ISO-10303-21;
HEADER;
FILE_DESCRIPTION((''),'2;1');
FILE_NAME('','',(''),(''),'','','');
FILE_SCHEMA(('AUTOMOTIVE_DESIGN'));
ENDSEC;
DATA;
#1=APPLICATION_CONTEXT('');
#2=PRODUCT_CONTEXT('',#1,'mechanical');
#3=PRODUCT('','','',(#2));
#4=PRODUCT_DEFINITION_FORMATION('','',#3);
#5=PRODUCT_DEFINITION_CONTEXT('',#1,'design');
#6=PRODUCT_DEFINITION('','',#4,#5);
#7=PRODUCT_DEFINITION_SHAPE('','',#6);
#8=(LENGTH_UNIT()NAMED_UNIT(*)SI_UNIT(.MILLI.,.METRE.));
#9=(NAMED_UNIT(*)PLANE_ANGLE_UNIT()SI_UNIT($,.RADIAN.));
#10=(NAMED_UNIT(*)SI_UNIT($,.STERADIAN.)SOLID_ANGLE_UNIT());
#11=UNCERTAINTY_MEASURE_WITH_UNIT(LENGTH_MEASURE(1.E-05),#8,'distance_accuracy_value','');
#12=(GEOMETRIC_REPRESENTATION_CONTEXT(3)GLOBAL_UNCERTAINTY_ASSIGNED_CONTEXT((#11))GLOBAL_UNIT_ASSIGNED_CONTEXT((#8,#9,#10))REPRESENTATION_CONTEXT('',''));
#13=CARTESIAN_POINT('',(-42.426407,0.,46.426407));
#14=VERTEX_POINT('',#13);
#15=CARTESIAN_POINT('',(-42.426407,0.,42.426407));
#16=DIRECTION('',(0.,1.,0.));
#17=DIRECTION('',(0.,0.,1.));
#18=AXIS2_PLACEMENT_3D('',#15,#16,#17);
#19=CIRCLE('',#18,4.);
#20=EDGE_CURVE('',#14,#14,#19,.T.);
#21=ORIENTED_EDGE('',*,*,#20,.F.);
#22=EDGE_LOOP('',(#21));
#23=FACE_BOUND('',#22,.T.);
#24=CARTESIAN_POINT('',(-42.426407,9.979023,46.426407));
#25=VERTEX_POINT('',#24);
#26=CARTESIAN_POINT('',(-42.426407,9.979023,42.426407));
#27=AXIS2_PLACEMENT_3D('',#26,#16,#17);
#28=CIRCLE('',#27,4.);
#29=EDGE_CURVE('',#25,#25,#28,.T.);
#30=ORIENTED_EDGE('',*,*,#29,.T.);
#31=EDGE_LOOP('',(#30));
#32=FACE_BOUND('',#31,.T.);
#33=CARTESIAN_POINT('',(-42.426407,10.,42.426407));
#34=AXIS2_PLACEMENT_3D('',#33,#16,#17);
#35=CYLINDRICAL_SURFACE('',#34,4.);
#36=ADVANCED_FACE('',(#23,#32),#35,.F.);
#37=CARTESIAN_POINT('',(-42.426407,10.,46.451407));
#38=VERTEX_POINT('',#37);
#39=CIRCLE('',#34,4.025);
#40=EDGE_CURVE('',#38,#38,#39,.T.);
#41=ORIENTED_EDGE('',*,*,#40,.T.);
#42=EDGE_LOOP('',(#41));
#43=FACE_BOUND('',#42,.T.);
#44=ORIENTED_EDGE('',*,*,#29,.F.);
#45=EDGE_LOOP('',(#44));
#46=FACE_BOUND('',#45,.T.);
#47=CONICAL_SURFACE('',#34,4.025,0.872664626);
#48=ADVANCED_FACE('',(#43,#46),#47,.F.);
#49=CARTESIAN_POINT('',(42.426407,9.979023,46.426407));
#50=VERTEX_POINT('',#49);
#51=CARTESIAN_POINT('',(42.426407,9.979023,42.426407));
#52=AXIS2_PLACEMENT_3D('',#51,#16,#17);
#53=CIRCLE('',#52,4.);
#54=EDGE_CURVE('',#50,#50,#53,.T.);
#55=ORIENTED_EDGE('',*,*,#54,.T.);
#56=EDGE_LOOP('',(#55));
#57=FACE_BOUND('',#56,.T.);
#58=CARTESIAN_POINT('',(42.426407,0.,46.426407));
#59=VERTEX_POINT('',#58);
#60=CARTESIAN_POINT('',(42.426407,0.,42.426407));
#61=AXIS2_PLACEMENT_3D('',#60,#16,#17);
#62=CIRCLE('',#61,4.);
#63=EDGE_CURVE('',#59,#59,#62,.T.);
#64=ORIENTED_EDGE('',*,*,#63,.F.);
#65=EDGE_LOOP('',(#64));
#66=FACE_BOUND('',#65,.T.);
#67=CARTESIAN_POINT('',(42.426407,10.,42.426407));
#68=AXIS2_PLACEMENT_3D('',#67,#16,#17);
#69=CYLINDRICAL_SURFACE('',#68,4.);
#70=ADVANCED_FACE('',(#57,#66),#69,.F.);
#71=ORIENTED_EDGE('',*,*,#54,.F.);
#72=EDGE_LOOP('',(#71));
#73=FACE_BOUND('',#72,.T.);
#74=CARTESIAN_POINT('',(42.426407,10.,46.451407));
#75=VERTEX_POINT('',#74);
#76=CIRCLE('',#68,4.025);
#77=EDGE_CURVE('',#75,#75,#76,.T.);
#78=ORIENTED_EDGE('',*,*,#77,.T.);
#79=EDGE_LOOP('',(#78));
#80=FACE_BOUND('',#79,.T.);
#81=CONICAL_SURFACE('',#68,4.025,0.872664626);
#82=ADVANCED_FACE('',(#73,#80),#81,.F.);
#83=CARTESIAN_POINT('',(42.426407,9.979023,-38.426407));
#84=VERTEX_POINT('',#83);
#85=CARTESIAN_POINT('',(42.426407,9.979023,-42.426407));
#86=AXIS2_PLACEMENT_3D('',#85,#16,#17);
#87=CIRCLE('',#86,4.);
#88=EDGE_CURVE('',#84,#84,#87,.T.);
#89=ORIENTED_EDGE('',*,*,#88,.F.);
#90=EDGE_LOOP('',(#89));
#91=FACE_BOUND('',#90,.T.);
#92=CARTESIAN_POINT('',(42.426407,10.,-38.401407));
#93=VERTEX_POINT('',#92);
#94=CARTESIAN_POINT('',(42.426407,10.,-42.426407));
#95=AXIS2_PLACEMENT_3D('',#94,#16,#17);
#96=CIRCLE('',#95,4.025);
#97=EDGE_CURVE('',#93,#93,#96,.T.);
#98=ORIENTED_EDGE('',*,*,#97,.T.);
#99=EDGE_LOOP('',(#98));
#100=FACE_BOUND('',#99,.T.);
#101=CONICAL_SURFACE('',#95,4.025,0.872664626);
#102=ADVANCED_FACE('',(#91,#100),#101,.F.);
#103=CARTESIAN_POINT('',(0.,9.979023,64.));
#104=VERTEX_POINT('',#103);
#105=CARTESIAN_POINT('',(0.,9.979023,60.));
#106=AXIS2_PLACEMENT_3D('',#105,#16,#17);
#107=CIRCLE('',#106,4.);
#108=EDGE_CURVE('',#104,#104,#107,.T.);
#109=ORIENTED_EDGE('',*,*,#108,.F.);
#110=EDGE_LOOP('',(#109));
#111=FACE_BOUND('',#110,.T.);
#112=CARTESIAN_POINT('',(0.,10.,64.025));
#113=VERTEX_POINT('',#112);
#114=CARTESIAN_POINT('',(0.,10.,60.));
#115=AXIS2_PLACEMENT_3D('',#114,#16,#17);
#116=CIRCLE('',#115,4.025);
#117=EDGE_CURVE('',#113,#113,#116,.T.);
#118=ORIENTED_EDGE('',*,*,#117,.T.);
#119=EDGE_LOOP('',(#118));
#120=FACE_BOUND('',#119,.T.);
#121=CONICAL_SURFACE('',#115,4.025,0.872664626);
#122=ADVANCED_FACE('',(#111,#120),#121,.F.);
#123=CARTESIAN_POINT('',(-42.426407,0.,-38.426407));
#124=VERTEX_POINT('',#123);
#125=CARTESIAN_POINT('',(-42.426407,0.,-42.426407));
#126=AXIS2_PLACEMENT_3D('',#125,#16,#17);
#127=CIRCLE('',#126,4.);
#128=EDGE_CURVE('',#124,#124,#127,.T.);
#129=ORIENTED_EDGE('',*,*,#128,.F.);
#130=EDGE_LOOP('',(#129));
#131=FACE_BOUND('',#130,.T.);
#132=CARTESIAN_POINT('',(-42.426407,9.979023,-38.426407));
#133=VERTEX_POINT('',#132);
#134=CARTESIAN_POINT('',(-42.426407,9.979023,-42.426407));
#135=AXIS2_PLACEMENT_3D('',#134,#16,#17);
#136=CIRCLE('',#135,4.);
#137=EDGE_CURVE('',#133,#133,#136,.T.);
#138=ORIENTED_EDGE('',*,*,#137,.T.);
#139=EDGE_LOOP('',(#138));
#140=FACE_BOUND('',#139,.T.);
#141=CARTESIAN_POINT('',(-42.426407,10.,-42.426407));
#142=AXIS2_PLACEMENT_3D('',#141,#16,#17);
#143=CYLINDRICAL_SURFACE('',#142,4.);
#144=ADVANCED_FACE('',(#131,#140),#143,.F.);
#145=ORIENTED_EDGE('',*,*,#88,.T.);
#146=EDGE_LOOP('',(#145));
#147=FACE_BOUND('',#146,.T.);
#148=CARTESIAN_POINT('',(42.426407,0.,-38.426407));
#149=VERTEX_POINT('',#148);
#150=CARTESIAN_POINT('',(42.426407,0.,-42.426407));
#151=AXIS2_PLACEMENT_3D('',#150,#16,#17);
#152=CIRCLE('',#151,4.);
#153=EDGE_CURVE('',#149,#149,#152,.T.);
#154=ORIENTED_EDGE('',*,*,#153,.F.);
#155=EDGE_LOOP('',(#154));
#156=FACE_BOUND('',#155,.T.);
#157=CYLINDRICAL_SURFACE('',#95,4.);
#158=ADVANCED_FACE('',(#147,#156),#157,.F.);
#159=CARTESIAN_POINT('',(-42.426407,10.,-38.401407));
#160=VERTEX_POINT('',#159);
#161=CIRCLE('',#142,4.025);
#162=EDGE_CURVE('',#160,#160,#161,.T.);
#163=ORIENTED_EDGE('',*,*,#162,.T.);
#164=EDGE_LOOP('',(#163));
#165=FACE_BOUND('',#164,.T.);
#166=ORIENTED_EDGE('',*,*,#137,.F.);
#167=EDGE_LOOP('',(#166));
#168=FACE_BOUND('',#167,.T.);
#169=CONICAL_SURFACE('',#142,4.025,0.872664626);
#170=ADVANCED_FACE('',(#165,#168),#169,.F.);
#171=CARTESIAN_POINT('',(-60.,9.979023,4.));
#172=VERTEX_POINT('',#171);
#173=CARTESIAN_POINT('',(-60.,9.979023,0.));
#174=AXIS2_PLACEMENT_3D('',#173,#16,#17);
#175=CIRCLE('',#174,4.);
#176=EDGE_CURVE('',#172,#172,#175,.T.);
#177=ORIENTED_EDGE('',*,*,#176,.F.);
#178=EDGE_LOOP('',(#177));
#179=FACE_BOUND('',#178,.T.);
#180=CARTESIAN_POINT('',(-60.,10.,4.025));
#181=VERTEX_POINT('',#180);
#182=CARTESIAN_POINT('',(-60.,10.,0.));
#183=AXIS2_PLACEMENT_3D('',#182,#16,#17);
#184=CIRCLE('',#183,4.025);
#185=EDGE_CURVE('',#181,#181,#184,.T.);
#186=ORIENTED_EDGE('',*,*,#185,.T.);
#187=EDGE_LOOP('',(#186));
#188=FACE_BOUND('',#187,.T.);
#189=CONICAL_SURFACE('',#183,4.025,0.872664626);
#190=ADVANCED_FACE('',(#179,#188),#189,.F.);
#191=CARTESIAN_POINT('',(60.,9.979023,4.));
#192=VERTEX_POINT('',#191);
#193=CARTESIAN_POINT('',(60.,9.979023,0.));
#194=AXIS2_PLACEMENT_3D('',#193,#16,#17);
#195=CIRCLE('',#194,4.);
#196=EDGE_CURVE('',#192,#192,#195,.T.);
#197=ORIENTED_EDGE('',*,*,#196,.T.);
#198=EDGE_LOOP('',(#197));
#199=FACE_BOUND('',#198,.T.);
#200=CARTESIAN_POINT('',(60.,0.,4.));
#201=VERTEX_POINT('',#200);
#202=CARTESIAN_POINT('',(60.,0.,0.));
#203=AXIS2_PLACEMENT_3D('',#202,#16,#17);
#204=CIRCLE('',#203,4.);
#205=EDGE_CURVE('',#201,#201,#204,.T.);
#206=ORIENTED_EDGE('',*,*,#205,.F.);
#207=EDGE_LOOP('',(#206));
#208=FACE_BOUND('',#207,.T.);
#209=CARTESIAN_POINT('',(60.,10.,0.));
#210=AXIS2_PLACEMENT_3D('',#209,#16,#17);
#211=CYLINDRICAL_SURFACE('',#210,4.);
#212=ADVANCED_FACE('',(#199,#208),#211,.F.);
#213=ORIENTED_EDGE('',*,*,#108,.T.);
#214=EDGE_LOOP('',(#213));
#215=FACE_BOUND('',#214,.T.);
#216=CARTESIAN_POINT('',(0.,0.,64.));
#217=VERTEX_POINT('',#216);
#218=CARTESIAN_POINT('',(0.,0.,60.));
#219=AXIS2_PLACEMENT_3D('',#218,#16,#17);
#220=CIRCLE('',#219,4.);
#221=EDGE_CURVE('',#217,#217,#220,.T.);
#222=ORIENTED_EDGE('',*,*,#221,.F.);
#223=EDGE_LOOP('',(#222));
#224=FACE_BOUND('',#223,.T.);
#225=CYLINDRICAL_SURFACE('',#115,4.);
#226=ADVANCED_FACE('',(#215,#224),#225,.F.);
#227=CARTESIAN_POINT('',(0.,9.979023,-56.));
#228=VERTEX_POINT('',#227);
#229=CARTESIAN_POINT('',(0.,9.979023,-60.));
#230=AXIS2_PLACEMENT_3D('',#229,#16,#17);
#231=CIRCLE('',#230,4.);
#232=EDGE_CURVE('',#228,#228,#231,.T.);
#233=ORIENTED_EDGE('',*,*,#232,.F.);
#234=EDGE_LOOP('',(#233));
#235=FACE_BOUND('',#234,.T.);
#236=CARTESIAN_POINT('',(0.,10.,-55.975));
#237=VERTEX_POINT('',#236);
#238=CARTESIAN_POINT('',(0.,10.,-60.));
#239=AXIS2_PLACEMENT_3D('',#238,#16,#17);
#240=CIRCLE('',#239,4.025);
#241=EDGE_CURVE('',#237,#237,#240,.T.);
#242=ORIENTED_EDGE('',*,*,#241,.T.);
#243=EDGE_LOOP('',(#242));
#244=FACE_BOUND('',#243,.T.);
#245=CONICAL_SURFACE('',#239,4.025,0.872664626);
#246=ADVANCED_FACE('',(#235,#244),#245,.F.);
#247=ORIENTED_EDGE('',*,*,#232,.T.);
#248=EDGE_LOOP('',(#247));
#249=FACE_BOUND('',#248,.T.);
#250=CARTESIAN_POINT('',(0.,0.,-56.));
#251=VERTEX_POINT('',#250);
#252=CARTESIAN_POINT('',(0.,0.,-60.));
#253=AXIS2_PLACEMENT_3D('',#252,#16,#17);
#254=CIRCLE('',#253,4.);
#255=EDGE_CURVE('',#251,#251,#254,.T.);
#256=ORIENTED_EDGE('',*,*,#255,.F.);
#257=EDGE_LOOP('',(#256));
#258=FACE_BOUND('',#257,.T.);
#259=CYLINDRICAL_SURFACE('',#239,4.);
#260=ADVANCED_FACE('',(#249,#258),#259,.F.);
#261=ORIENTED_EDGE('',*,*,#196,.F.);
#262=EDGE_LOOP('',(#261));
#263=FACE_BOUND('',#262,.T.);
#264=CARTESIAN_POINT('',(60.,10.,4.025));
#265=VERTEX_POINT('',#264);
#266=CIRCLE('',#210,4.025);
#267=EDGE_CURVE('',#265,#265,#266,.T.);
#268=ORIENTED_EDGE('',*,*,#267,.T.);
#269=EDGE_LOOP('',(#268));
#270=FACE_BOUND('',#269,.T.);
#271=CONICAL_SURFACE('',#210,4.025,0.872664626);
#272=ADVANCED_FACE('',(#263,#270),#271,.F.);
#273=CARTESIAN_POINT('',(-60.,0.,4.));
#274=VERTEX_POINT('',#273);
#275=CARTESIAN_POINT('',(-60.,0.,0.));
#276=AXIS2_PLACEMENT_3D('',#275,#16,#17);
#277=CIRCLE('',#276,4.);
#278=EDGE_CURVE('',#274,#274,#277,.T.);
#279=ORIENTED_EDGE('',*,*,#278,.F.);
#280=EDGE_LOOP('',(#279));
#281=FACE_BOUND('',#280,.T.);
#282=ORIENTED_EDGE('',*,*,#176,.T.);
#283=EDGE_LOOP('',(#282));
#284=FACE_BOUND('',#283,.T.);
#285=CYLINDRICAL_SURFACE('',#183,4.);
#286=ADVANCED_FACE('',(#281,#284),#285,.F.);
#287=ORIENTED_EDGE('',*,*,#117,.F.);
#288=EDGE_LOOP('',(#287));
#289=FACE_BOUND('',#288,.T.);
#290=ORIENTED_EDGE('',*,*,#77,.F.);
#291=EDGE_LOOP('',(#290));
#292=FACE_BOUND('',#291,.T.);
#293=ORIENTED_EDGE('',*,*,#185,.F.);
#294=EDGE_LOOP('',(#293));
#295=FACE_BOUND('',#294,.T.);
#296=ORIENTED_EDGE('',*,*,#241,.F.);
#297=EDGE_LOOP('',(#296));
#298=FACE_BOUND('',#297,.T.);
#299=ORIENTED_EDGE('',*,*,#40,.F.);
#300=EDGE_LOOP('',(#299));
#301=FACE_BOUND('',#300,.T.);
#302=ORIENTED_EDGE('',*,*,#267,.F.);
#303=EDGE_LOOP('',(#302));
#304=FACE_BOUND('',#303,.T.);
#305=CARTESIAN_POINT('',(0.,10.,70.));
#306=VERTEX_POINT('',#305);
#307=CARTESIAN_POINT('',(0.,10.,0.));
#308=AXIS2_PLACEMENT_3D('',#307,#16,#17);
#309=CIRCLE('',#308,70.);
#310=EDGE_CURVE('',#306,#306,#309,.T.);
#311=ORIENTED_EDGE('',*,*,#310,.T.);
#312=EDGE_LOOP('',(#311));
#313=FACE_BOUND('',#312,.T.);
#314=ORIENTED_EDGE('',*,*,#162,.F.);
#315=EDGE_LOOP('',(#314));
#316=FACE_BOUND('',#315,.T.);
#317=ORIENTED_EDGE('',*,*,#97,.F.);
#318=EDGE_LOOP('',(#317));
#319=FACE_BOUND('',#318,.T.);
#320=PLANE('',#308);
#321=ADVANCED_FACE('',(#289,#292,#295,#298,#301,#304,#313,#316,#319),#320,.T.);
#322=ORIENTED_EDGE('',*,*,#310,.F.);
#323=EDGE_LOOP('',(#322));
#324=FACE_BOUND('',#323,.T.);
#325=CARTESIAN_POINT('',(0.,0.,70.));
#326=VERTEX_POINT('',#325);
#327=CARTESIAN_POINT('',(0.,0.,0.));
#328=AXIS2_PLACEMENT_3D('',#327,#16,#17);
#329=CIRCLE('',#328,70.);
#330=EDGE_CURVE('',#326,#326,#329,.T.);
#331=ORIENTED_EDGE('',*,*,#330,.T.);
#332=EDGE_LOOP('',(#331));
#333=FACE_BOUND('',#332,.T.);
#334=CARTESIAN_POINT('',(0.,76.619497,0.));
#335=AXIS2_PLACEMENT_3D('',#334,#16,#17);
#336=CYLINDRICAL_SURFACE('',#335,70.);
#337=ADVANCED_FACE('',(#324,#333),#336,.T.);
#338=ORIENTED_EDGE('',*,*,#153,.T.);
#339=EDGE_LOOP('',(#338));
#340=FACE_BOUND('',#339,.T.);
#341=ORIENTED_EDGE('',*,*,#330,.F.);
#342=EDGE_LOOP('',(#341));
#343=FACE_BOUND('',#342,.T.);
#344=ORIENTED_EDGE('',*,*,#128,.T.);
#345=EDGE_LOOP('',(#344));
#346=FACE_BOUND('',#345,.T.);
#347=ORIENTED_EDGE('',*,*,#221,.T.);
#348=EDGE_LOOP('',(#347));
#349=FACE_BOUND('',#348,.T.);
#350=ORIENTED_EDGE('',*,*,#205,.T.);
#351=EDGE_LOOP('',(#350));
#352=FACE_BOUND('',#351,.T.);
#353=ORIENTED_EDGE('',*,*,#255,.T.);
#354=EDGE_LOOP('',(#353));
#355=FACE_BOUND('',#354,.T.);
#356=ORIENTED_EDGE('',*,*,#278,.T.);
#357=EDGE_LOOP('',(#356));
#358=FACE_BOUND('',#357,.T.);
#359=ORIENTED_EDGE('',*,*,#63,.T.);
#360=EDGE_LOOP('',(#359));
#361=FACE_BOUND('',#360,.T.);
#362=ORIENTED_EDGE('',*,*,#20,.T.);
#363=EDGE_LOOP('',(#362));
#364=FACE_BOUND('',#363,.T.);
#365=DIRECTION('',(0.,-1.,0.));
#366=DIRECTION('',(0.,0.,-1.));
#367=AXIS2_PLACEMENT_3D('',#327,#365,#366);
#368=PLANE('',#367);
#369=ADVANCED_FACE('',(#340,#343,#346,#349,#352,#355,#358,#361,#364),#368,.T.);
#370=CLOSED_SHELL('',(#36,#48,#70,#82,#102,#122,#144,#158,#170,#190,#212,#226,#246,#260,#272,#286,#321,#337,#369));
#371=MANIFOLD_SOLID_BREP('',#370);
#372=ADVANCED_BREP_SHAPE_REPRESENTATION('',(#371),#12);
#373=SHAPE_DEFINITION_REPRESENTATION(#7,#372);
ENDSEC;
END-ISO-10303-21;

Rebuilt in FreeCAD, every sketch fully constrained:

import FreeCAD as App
import Part
import Sketcher

V = App.Vector
Q = App.Units.Quantity

doc = App.newDocument("Part")
body = doc.addObject("PartDesign::Body", "Body")

# Sketch on XY plane
sketch1 = body.newObject("Sketcher::SketchObject", "Sketch")
sketch1.AttachmentSupport = (doc.getObject("XY_Plane"), [""])
sketch1.MapMode = "FlatFace"
sketch1.addGeometry([
    Part.LineSegment(V(-70, 10, 0), V(-70, 0, 0)),
    Part.LineSegment(V(-70, 0, 0), V(0, 0, 0)),
    Part.LineSegment(V(0, 0, 0), V(0, 10, 0)),
    Part.LineSegment(V(0, 10, 0), V(-70, 10, 0)),
], False)
sketch1.addConstraint([
    Sketcher.Constraint("Coincident", 0, 2, 1, 1),
    Sketcher.Constraint("Coincident", 1, 2, 2, 1),
    Sketcher.Constraint("Coincident", 2, 2, 3, 1),
    Sketcher.Constraint("Coincident", 3, 2, 0, 1),
    Sketcher.Constraint("Vertical", 0),
    Sketcher.Constraint("Horizontal", 1),
    Sketcher.Constraint("Vertical", 2),
    Sketcher.Constraint("Horizontal", 3),
    Sketcher.Constraint("Coincident", 1, 2, -1, 1),
    Sketcher.Constraint("DistanceX", 1, 1, 1, 2, Q("70 mm")),
    Sketcher.Constraint("DistanceY", 0, 2, 0, 1, Q("10 mm")),
])
revolution = body.newObject("PartDesign::Revolution", "Revolution")
revolution.Profile = sketch1
revolution.ReferenceAxis = (sketch1, ["V_Axis"])
revolution.Angle = 360

# Sketch on XZ plane
sketch2 = body.newObject("Sketcher::SketchObject", "Sketch001")
sketch2.AttachmentSupport = (doc.getObject("XZ_Plane"), [""])
sketch2.MapMode = "FlatFace"
sketch2.AttachmentOffset = App.Placement(V(0, 0, -10), App.Rotation())
sketch2.addGeometry(Part.Circle(V(-60, 0, 0), V(0, 0, 1), 4), False)
sketch2.addConstraint([
    Sketcher.Constraint("PointOnObject", 0, 3, -1),
    Sketcher.Constraint("Diameter", 0, Q("8 mm")),
    Sketcher.Constraint("DistanceX", 0, 3, -1, 1, Q("60 mm")),
])
doc.recompute()
hole = body.newObject("PartDesign::Hole", "Hole")
hole.Profile = sketch2
hole.ThreadType = "None"
hole.Diameter = 8
hole.DepthType = "ThroughAll"
hole.HoleCutType = "Countersink"
hole.HoleCutDiameter = 8.05
hole.HoleCutCountersinkAngle = 100
hole.Reversed = True
doc.recompute()

polarpattern = body.newObject("PartDesign::PolarPattern", "PolarPattern")
polarpattern.Originals = [hole]
polarpattern.Axis = (doc.getObject("Y_Axis"), [""])
polarpattern.Angle = 360
polarpattern.Occurrences = 8
body.Tip = polarpattern

doc.recompute()
